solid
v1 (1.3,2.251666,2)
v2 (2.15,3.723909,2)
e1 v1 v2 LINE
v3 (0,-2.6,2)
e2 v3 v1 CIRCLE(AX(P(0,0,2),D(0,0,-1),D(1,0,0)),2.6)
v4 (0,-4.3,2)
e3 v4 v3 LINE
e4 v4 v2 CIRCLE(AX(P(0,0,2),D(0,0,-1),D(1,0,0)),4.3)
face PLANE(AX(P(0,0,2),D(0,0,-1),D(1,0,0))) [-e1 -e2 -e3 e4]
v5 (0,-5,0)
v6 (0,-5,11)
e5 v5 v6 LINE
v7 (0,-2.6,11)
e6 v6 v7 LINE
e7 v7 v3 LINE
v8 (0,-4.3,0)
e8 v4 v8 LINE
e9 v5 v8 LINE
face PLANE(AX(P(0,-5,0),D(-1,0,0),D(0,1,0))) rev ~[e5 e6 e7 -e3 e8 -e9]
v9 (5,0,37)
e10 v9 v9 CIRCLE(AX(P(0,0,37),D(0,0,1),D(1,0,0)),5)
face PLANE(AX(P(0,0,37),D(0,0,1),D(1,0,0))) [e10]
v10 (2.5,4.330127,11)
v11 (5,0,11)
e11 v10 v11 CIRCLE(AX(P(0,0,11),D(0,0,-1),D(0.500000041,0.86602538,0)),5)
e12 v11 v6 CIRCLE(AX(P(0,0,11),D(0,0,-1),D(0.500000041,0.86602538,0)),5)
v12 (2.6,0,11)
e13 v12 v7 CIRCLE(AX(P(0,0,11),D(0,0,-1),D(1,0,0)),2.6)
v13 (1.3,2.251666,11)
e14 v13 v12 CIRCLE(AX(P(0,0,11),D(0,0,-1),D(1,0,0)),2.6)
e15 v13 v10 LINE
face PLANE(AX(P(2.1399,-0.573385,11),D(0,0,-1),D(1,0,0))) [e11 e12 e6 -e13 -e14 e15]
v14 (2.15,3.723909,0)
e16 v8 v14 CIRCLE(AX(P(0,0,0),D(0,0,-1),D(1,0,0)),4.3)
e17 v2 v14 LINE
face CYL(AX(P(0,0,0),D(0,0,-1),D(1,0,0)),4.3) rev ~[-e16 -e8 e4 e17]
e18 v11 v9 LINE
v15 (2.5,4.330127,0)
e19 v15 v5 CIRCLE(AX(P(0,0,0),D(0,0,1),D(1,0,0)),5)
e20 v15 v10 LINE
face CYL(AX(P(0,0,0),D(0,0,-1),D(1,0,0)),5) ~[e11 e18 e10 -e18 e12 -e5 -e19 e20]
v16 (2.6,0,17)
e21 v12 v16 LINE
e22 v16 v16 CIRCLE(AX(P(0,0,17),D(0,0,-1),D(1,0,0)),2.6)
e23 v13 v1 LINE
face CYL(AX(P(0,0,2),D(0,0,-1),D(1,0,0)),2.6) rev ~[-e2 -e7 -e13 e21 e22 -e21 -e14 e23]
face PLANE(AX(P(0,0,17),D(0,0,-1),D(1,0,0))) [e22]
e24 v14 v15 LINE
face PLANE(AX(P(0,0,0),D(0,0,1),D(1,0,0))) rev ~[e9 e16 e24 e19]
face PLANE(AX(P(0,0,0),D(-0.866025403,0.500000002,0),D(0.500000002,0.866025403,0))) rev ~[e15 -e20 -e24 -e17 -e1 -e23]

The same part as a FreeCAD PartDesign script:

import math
import FreeCAD as App
import Part
import Sketcher
Q = App.Units.Quantity

doc = App.newDocument("Part")
body = doc.addObject("PartDesign::Body", "Body")

# Sketch on XY plane
sketch1 = body.newObject("Sketcher::SketchObject", "Sketch")
sketch1.AttachmentSupport = (doc.getObject("XY_Plane"), [""])
sketch1.MapMode = "FlatFace"
sketch1.addGeometry(Part.Circle(App.Vector(0, 0, 0), App.Vector(0, 0, 1), 5), False)
sketch1.addConstraint(Sketcher.Constraint("Coincident", 0, 3, -1, 1))
sketch1.addConstraint(Sketcher.Constraint("Diameter", 0, 10.0))
pad1 = body.newObject("PartDesign::Pad", "Pad")
pad1.Profile = sketch1
pad1.Length = 37

# Sketch on XY plane
sketch2 = body.newObject("Sketcher::SketchObject", "Sketch001")
sketch2.AttachmentSupport = (doc.getObject("XY_Plane"), [""])
sketch2.MapMode = "FlatFace"
sketch2.addGeometry(Part.Circle(App.Vector(0, 0, 0), App.Vector(0, 0, 1), 4.3), False)
sketch2.addConstraint(Sketcher.Constraint("Coincident", 0, 3, -1, 1))
sketch2.addConstraint(Sketcher.Constraint("Diameter", 0, 8.6))
pocket1 = body.newObject("PartDesign::Pocket", "Pocket")
pocket1.Profile = sketch2
pocket1.Length = 2
pocket1.Reversed = True

# Sketch on XY plane
sketch3 = body.newObject("Sketcher::SketchObject", "Sketch002")
sketch3.AttachmentSupport = (doc.getObject("XY_Plane"), [""])
sketch3.MapMode = "FlatFace"
sketch3.AttachmentOffset = App.Placement(App.Vector(0, 0, 2), App.Rotation())
sketch3.addGeometry(Part.Circle(App.Vector(0, 0, 0), App.Vector(0, 0, 1), 2.6), False)
sketch3.addConstraint(Sketcher.Constraint("Coincident", 0, 3, -1, 1))
sketch3.addConstraint(Sketcher.Constraint("Diameter", 0, 5.2))
pocket2 = body.newObject("PartDesign::Pocket", "Pocket001")
pocket2.Profile = sketch3
pocket2.Length = 15
pocket2.Reversed = True

# Sketch on XY plane
sketch4 = body.newObject("Sketcher::SketchObject", "Sketch003")
sketch4.AttachmentSupport = (doc.getObject("XY_Plane"), [""])
sketch4.MapMode = "FlatFace"
sketch4.addGeometry(Part.LineSegment(App.Vector(0, -5, 0), App.Vector(0, 0, 0)), False)
sketch4.addGeometry(Part.LineSegment(App.Vector(0, 0, 0), App.Vector(2.5, 4.3, 0)), False)
sketch4.addGeometry(Part.ArcOfCircle(Part.Circle(App.Vector(0, 0, 0), App.Vector(0, 0, 1), 5), math.radians(-90), math.radians(60)), False)
sketch4.addConstraint(Sketcher.Constraint("Coincident", 0, 2, 1, 1))
sketch4.addConstraint(Sketcher.Constraint("Coincident", 1, 2, 2, 2))
sketch4.addConstraint(Sketcher.Constraint("Coincident", 2, 1, 0, 1))
sketch4.addConstraint(Sketcher.Constraint("Vertical", 0))
sketch4.addConstraint(Sketcher.Constraint("Coincident", 2, 3, -1, 1))
sketch4.addConstraint(Sketcher.Constraint("Coincident", 0, 2, -1, 1))
sketch4.addConstraint(Sketcher.Constraint("Radius", 2, 5.0))
sketch4.addConstraint(Sketcher.Constraint("Angle", 1, Q("60 deg")))
pocket3 = body.newObject("PartDesign::Pocket", "Pocket002")
pocket3.Profile = sketch4
pocket3.Length = 11
pocket3.Reversed = True

doc.recompute()
